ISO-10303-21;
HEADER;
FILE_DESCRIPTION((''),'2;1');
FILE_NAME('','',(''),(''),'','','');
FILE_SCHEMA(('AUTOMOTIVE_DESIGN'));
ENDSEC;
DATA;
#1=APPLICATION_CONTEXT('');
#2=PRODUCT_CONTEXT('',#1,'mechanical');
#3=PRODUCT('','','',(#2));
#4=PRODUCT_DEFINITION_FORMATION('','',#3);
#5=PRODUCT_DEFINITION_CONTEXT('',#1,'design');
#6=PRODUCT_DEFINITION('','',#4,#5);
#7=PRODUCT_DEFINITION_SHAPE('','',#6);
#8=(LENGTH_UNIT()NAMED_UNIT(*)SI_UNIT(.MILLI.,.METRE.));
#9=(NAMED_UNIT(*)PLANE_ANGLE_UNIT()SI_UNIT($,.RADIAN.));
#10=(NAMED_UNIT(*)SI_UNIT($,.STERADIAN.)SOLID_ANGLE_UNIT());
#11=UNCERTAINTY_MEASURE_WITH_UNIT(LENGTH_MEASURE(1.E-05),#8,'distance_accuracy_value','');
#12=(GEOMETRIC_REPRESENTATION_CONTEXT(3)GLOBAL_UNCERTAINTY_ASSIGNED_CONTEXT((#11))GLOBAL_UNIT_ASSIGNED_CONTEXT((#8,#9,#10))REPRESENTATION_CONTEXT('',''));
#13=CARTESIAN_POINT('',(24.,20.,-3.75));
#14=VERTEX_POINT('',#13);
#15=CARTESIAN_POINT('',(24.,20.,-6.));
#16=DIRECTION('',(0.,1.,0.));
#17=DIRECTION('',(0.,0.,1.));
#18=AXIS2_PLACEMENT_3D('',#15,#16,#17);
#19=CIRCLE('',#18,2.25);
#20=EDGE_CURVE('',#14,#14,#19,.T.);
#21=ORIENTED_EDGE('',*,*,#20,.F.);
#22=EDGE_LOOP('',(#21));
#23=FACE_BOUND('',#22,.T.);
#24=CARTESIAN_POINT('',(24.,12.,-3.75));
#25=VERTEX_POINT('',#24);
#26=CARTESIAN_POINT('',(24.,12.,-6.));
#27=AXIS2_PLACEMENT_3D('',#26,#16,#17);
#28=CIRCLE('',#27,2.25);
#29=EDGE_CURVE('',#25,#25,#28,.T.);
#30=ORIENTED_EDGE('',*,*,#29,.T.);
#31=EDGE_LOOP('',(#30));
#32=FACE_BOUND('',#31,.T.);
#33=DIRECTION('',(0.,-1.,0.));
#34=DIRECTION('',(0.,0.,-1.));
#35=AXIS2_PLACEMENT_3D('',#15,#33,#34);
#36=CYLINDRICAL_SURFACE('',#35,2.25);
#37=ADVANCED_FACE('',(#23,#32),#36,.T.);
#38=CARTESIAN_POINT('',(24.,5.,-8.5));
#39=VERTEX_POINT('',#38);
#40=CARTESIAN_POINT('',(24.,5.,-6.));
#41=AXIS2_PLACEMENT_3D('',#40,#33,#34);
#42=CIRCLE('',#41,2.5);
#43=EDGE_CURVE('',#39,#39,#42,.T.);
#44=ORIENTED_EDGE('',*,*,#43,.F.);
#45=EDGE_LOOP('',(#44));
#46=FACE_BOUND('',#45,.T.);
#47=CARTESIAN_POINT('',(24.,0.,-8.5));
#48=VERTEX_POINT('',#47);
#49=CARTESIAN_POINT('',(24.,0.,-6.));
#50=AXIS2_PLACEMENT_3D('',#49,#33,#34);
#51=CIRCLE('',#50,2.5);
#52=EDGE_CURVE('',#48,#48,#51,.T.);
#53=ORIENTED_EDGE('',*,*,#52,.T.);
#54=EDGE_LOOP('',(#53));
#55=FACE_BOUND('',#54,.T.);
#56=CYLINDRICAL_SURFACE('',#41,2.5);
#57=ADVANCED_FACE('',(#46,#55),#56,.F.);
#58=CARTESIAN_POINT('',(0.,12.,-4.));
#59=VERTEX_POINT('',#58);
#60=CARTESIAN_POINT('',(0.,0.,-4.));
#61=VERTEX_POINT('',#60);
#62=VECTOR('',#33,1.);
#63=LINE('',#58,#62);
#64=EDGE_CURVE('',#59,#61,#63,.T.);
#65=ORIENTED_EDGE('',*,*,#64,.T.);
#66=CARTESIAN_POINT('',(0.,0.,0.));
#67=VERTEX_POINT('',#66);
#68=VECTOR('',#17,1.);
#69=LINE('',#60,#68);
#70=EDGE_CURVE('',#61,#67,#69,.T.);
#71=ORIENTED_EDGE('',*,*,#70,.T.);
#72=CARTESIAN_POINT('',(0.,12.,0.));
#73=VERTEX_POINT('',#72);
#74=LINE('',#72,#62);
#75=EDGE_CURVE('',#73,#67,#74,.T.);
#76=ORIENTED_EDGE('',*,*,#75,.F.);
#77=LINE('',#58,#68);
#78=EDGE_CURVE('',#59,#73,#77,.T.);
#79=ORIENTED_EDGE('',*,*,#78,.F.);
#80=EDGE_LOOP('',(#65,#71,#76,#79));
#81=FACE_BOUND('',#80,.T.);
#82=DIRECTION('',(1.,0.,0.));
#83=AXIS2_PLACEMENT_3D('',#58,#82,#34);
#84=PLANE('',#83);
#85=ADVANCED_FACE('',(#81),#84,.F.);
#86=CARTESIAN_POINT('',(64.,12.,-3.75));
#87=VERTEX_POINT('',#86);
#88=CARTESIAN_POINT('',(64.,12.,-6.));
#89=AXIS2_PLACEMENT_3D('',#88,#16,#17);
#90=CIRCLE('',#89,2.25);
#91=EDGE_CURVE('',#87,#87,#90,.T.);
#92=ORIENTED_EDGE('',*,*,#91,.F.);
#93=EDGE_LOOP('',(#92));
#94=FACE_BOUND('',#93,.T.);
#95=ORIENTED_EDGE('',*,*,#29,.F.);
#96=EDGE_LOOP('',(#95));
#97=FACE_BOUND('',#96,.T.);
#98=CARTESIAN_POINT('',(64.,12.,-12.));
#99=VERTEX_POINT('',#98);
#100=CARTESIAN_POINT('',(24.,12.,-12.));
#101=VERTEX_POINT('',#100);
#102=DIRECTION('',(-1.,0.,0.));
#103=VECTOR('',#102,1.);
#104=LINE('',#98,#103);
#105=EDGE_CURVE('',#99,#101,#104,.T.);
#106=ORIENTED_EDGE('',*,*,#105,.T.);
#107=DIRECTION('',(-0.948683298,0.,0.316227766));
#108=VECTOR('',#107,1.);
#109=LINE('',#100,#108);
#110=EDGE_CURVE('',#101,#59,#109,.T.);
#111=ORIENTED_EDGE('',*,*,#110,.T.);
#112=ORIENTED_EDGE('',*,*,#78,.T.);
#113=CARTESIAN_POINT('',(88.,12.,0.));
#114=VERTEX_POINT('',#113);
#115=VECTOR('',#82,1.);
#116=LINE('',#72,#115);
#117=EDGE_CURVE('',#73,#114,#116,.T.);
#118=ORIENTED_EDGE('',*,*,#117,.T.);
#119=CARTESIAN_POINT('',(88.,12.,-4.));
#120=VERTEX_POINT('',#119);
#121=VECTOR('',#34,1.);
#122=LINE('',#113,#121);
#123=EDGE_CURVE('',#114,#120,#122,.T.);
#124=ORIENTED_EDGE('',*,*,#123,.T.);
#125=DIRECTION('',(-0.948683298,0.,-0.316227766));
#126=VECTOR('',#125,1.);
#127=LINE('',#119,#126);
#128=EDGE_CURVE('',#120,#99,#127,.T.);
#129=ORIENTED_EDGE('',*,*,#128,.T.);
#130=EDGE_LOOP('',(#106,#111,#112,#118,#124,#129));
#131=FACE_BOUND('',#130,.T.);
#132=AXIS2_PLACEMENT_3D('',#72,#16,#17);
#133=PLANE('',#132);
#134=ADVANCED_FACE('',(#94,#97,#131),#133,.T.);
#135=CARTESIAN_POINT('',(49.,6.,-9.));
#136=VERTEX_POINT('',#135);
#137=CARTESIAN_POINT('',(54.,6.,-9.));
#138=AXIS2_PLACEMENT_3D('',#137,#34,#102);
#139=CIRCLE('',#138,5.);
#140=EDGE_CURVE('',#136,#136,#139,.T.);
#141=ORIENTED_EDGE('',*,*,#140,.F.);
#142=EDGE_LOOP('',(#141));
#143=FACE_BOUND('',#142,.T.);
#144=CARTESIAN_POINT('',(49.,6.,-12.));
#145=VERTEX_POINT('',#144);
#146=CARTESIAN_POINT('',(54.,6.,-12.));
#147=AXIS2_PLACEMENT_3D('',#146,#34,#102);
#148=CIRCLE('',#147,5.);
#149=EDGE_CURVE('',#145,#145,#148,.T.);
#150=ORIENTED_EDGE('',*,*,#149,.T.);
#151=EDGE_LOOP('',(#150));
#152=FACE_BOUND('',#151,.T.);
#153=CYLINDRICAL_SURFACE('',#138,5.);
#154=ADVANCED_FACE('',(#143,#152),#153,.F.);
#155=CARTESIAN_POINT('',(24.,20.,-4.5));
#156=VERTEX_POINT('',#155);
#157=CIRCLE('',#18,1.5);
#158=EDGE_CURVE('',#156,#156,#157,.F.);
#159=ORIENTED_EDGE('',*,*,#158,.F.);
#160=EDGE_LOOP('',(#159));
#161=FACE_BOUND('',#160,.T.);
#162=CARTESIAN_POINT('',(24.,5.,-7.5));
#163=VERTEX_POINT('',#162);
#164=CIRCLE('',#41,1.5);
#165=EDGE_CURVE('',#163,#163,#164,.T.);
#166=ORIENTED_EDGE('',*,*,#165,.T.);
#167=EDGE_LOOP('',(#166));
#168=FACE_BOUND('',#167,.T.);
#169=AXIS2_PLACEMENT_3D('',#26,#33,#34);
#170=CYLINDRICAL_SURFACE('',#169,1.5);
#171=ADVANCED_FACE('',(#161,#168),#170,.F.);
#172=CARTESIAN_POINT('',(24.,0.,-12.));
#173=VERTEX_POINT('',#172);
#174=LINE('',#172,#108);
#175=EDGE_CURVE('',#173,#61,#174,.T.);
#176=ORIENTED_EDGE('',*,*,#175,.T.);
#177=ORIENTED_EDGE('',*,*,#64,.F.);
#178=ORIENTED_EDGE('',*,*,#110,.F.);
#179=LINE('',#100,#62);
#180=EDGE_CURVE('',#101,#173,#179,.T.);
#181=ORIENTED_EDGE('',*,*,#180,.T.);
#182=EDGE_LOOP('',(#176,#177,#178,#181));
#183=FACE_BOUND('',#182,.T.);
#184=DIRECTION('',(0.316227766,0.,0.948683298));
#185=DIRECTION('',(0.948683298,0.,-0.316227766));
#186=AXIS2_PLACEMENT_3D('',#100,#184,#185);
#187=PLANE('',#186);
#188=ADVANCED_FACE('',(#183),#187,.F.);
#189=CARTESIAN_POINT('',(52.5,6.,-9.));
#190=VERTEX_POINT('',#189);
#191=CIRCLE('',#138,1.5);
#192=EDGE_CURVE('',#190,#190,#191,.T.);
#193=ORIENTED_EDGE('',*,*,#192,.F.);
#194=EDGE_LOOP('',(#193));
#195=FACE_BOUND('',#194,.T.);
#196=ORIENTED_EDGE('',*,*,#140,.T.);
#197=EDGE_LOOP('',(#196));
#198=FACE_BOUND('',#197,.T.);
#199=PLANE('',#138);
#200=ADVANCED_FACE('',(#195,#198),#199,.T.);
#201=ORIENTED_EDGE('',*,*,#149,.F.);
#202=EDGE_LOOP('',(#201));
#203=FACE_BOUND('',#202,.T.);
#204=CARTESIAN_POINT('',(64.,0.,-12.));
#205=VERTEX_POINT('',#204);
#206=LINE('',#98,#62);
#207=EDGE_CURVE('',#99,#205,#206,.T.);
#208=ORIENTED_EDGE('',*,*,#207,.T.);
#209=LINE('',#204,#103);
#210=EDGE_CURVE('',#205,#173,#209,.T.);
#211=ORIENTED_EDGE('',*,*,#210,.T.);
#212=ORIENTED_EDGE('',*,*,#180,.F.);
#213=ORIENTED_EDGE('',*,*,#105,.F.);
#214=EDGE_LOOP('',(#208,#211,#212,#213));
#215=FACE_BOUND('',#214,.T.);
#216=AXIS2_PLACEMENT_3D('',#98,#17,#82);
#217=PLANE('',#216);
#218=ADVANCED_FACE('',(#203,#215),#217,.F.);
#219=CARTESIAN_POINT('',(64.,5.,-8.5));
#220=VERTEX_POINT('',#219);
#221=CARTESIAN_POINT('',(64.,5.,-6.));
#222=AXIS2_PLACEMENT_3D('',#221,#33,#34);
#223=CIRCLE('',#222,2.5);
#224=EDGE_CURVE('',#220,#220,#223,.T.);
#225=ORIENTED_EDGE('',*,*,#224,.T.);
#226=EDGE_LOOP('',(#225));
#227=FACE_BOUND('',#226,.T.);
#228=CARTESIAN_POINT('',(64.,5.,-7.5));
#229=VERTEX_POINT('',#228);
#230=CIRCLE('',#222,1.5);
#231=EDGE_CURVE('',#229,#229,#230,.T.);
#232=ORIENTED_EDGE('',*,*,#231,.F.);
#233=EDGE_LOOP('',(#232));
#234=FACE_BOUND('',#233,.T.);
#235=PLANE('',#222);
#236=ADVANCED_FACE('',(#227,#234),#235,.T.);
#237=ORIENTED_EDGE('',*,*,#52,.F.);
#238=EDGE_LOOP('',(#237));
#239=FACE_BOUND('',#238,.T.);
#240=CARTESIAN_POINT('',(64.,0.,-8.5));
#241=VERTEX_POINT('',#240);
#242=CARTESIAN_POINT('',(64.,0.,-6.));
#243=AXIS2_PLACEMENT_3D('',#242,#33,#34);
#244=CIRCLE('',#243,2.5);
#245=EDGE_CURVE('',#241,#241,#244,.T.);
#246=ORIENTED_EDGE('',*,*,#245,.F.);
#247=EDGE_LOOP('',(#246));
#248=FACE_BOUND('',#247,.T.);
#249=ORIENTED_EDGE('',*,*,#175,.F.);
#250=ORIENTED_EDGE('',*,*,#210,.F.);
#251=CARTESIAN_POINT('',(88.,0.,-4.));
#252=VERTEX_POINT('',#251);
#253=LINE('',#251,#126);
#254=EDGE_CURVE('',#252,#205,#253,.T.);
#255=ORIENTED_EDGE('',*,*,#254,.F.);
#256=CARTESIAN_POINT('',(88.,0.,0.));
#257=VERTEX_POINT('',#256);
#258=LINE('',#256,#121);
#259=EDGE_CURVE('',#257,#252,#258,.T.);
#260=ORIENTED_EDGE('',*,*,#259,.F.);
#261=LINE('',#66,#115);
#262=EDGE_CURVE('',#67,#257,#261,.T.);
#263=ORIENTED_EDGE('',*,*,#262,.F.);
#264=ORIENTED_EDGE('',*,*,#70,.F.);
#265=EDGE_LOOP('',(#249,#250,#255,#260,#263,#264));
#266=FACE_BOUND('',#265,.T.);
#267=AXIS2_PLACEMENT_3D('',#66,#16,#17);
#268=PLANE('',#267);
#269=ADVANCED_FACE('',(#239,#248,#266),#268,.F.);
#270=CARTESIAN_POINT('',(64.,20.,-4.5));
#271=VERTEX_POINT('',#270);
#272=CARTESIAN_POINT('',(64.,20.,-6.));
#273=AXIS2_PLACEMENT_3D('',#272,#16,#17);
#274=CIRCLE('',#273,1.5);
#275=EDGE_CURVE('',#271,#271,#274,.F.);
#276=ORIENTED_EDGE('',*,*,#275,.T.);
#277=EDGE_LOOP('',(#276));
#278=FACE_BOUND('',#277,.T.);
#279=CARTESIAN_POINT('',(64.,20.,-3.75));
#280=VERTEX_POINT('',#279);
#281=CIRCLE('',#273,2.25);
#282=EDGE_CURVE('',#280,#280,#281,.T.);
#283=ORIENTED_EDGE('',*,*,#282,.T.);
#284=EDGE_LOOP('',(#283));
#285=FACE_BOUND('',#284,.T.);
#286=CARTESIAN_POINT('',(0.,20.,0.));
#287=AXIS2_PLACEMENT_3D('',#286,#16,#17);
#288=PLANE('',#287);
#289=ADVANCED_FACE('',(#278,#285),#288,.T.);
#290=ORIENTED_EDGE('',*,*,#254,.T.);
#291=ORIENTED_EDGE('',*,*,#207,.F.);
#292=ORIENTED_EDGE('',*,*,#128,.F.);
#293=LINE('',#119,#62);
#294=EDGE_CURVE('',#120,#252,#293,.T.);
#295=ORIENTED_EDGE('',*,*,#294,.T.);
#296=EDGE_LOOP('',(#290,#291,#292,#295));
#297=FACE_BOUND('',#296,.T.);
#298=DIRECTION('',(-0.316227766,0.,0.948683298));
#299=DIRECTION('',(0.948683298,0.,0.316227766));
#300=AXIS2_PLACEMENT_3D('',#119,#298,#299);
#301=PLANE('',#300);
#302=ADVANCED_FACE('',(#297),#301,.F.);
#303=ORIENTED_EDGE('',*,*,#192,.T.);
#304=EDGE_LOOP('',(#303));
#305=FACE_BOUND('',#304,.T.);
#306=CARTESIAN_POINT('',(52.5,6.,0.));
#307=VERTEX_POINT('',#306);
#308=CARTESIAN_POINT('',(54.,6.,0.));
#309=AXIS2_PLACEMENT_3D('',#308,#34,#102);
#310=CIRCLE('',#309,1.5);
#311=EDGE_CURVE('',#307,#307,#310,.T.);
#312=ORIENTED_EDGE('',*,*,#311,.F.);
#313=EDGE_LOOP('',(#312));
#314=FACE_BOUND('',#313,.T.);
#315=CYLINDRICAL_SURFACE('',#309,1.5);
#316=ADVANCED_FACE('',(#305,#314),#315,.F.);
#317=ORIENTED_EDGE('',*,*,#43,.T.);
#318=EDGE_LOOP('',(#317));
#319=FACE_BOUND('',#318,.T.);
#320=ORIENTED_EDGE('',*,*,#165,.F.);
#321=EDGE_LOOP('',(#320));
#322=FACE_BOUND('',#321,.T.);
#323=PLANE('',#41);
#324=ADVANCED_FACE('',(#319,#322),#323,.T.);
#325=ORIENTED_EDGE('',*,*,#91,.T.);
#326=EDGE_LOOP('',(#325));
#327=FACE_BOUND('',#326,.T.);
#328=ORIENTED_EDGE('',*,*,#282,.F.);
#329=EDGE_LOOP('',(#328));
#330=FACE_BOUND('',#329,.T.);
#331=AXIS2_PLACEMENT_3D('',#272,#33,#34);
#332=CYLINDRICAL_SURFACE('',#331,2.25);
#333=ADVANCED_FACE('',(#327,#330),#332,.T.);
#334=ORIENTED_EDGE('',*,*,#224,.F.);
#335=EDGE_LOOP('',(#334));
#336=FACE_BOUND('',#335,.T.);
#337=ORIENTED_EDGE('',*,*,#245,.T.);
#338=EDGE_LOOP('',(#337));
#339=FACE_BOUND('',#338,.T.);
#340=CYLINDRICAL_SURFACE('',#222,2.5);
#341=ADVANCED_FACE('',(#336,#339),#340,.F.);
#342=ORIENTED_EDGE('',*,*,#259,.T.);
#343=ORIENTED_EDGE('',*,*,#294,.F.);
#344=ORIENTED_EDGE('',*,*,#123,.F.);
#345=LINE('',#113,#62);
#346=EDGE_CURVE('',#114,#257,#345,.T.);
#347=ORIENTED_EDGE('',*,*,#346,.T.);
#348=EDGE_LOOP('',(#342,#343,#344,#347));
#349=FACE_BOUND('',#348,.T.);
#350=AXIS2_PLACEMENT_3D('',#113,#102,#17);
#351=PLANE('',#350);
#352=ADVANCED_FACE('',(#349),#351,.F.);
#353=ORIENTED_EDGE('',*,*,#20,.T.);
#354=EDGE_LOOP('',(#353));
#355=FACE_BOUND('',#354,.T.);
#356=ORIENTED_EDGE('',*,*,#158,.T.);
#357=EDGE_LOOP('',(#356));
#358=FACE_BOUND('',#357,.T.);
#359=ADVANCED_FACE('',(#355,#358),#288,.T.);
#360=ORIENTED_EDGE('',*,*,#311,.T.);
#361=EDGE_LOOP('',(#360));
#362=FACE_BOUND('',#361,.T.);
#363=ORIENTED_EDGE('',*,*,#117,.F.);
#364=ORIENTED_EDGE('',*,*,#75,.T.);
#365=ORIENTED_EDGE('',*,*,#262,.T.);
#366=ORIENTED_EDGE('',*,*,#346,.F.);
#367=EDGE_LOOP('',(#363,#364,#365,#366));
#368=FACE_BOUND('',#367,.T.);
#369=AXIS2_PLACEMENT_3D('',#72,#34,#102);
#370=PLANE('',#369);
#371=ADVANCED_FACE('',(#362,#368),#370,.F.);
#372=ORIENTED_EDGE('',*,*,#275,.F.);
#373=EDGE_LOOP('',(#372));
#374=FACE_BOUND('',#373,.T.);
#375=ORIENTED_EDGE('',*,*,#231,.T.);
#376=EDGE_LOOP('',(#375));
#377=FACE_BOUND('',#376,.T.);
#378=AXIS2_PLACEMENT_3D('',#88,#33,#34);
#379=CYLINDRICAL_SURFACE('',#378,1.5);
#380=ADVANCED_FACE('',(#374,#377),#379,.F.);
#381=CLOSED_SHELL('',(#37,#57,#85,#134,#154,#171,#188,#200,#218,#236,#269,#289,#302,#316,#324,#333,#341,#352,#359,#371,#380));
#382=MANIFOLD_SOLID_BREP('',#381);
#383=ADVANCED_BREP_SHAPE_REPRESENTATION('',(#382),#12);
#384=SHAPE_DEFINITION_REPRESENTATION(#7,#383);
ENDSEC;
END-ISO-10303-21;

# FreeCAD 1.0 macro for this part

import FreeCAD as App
import Part
import Sketcher

doc = App.newDocument("Part")
body = doc.addObject("PartDesign::Body", "Body")

# Sketch on XZ plane
sketch1 = doc.addObject("Sketcher::SketchObject", "Sketch")
body.addObject(sketch1)
sketch1.AttachmentSupport = (doc.XZ_Plane, [""])
sketch1.MapMode = "FlatFace"
sketch1.addGeometry(Part.LineSegment(App.Vector(0, 0, 0), App.Vector(88, 0, 0)), False)
sketch1.addGeometry(Part.LineSegment(App.Vector(88, 0, 0), App.Vector(88, -4, 0)), False)
sketch1.addGeometry(Part.LineSegment(App.Vector(88, -4, 0), App.Vector(64, -12, 0)), False)
sketch1.addGeometry(Part.LineSegment(App.Vector(64, -12, 0), App.Vector(24, -12, 0)), False)
sketch1.addGeometry(Part.LineSegment(App.Vector(24, -12, 0), App.Vector(0, -4, 0)), False)
sketch1.addGeometry(Part.LineSegment(App.Vector(0, -4, 0), App.Vector(0, 0, 0)), False)
sketch1.addConstraint(Sketcher.Constraint("Coincident", 0, 2, 1, 1))
sketch1.addConstraint(Sketcher.Constraint("Coincident", 1, 2, 2, 1))
sketch1.addConstraint(Sketcher.Constraint("Coincident", 2, 2, 3, 1))
sketch1.addConstraint(Sketcher.Constraint("Coincident", 3, 2, 4, 1))
sketch1.addConstraint(Sketcher.Constraint("Coincident", 4, 2, 5, 1))
sketch1.addConstraint(Sketcher.Constraint("Coincident", 5, 2, 0, 1))
sketch1.addConstraint(Sketcher.Constraint("Horizontal", 0))
sketch1.addConstraint(Sketcher.Constraint("Vertical", 1))
sketch1.addConstraint(Sketcher.Constraint("Horizontal", 3))
sketch1.addConstraint(Sketcher.Constraint("Vertical", 5))
sketch1.addConstraint(Sketcher.Constraint("Coincident", 5, 2, -1, 1))
sketch1.addConstraint(Sketcher.Constraint("Horizontal", 1, 2, 4, 2))
sketch1.addConstraint(Sketcher.Constraint("Equal", 2, 4))
sketch1.addConstraint(Sketcher.Constraint("DistanceX", 0, 1, 0, 2, 88.0))
sketch1.addConstraint(Sketcher.Constraint("DistanceX", 3, 2, 3, 1, 40.0))
sketch1.addConstraint(Sketcher.Constraint("DistanceY", 1, 2, 1, 1, 4.0))
sketch1.addConstraint(Sketcher.Constraint("DistanceY", 2, 2, -1, 1, 12.0))
pad1 = doc.addObject("PartDesign::Pad", "Pad")
body.addObject(pad1)
pad1.Profile = sketch1
pad1.Length = 12
pad1.Reversed = True

# Sketch on XZ plane
sketch2 = doc.addObject("Sketcher::SketchObject", "Sketch001")
body.addObject(sketch2)
sketch2.AttachmentSupport = (doc.XZ_Plane, [""])
sketch2.MapMode = "FlatFace"
sketch2.addGeometry(Part.Circle(App.Vector(24, -6, 0), App.Vector(0, 0, 1), 2.5), False)
sketch2.addGeometry(Part.Circle(App.Vector(64, -6, 0), App.Vector(0, 0, 1), 2.5), False)
sketch2.addConstraint(Sketcher.Constraint("Equal", 0, 1))
sketch2.addConstraint(Sketcher.Constraint("Horizontal", 0, 3, 1, 3))
sketch2.addConstraint(Sketcher.Constraint("Diameter", 0, 5.0))
sketch2.addConstraint(Sketcher.Constraint("DistanceX", -1, 1, 0, 3, 24.0))
sketch2.addConstraint(Sketcher.Constraint("DistanceY", 0, 3, -1, 1, 6.0))
sketch2.addConstraint(Sketcher.Constraint("DistanceX", -1, 1, 1, 3, 64.0))
pocket1 = doc.addObject("PartDesign::Pocket", "Pocket")
body.addObject(pocket1)
pocket1.Profile = sketch2
pocket1.Length = 5

# Sketch on XZ plane
sketch3 = doc.addObject("Sketcher::SketchObject", "Sketch002")
body.addObject(sketch3)
sketch3.AttachmentSupport = (doc.XZ_Plane, [""])
sketch3.MapMode = "FlatFace"
sketch3.AttachmentOffset = App.Placement(App.Vector(0, 0, -5), App.Rotation())
sketch3.addGeometry(Part.Circle(App.Vector(24, -6, 0), App.Vector(0, 0, 1), 1.5), False)
sketch3.addGeometry(Part.Circle(App.Vector(64, -6, 0), App.Vector(0, 0, 1), 1.5), False)
sketch3.addConstraint(Sketcher.Constraint("Equal", 0, 1))
sketch3.addConstraint(Sketcher.Constraint("Horizontal", 0, 3, 1, 3))
sketch3.addConstraint(Sketcher.Constraint("Diameter", 0, 3.0))
sketch3.addConstraint(Sketcher.Constraint("DistanceX", -1, 1, 0, 3, 24.0))
sketch3.addConstraint(Sketcher.Constraint("DistanceY", 0, 3, -1, 1, 6.0))
sketch3.addConstraint(Sketcher.Constraint("DistanceX", -1, 1, 1, 3, 64.0))
pocket2 = doc.addObject("PartDesign::Pocket", "Pocket001")
body.addObject(pocket2)
pocket2.Profile = sketch3
pocket2.Type = "ThroughAll"

# Sketch on XZ plane
sketch4 = doc.addObject("Sketcher::SketchObject", "Sketch003")
body.addObject(sketch4)
sketch4.AttachmentSupport = (doc.XZ_Plane, [""])
sketch4.MapMode = "FlatFace"
sketch4.AttachmentOffset = App.Placement(App.Vector(0, 0, -12), App.Rotation())
sketch4.addGeometry(Part.Circle(App.Vector(24, -6, 0), App.Vector(0, 0, 1), 2.25), False)
sketch4.addGeometry(Part.Circle(App.Vector(24, -6, 0), App.Vector(0, 0, 1), 1.5), False)
sketch4.addGeometry(Part.Circle(App.Vector(64, -6, 0), App.Vector(0, 0, 1), 2.25), False)
sketch4.addGeometry(Part.Circle(App.Vector(64, -6, 0), App.Vector(0, 0, 1), 1.5), False)
sketch4.addConstraint(Sketcher.Constraint("Coincident", 1, 3, 0, 3))
sketch4.addConstraint(Sketcher.Constraint("Coincident", 3, 3, 2, 3))
sketch4.addConstraint(Sketcher.Constraint("Equal", 0, 2))
sketch4.addConstraint(Sketcher.Constraint("Equal", 1, 3))
sketch4.addConstraint(Sketcher.Constraint("Horizontal", 1, 3, 2, 3))
sketch4.addConstraint(Sketcher.Constraint("Diameter", 1, 3.0))
sketch4.addConstraint(Sketcher.Constraint("Diameter", 0, 4.5))
sketch4.addConstraint(Sketcher.Constraint("DistanceX", -1, 1, 0, 3, 24.0))
sketch4.addConstraint(Sketcher.Constraint("DistanceY", 0, 3, -1, 1, 6.0))
sketch4.addConstraint(Sketcher.Constraint("DistanceX", -1, 1, 2, 3, 64.0))
pad2 = doc.addObject("PartDesign::Pad", "Pad001")
body.addObject(pad2)
pad2.Profile = sketch4
pad2.Length = 8
pad2.Reversed = True

# Sketch on XY plane
sketch5 = doc.addObject("Sketcher::SketchObject", "Sketch004")
body.addObject(sketch5)
sketch5.AttachmentSupport = (doc.XY_Plane, [""])
sketch5.MapMode = "FlatFace"
sketch5.AttachmentOffset = App.Placement(App.Vector(0, 0, -12), App.Rotation())
sketch5.addGeometry(Part.Circle(App.Vector(54, 6, 0), App.Vector(0, 0, 1), 5), False)
sketch5.addConstraint(Sketcher.Constraint("Diameter", 0, 10.0))
sketch5.addConstraint(Sketcher.Constraint("DistanceX", -1, 1, 0, 3, 54.0))
sketch5.addConstraint(Sketcher.Constraint("DistanceY", -1, 1, 0, 3, 6.0))
pocket3 = doc.addObject("PartDesign::Pocket", "Pocket002")
body.addObject(pocket3)
pocket3.Profile = sketch5
pocket3.Length = 3
pocket3.Reversed = True

# Sketch on XY plane
sketch6 = doc.addObject("Sketcher::SketchObject", "Sketch005")
body.addObject(sketch6)
sketch6.AttachmentSupport = (doc.XY_Plane, [""])
sketch6.MapMode = "FlatFace"
sketch6.AttachmentOffset = App.Placement(App.Vector(0, 0, -9), App.Rotation())
sketch6.addGeometry(Part.Circle(App.Vector(54, 6, 0), App.Vector(0, 0, 1), 1.5), False)
sketch6.addConstraint(Sketcher.Constraint("Diameter", 0, 3.0))
sketch6.addConstraint(Sketcher.Constraint("DistanceX", -1, 1, 0, 3, 54.0))
sketch6.addConstraint(Sketcher.Constraint("DistanceY", -1, 1, 0, 3, 6.0))
pocket4 = doc.addObject("PartDesign::Pocket", "Pocket003")
body.addObject(pocket4)
pocket4.Profile = sketch6
pocket4.Type = "ThroughAll"
pocket4.Reversed = True

doc.recompute()
